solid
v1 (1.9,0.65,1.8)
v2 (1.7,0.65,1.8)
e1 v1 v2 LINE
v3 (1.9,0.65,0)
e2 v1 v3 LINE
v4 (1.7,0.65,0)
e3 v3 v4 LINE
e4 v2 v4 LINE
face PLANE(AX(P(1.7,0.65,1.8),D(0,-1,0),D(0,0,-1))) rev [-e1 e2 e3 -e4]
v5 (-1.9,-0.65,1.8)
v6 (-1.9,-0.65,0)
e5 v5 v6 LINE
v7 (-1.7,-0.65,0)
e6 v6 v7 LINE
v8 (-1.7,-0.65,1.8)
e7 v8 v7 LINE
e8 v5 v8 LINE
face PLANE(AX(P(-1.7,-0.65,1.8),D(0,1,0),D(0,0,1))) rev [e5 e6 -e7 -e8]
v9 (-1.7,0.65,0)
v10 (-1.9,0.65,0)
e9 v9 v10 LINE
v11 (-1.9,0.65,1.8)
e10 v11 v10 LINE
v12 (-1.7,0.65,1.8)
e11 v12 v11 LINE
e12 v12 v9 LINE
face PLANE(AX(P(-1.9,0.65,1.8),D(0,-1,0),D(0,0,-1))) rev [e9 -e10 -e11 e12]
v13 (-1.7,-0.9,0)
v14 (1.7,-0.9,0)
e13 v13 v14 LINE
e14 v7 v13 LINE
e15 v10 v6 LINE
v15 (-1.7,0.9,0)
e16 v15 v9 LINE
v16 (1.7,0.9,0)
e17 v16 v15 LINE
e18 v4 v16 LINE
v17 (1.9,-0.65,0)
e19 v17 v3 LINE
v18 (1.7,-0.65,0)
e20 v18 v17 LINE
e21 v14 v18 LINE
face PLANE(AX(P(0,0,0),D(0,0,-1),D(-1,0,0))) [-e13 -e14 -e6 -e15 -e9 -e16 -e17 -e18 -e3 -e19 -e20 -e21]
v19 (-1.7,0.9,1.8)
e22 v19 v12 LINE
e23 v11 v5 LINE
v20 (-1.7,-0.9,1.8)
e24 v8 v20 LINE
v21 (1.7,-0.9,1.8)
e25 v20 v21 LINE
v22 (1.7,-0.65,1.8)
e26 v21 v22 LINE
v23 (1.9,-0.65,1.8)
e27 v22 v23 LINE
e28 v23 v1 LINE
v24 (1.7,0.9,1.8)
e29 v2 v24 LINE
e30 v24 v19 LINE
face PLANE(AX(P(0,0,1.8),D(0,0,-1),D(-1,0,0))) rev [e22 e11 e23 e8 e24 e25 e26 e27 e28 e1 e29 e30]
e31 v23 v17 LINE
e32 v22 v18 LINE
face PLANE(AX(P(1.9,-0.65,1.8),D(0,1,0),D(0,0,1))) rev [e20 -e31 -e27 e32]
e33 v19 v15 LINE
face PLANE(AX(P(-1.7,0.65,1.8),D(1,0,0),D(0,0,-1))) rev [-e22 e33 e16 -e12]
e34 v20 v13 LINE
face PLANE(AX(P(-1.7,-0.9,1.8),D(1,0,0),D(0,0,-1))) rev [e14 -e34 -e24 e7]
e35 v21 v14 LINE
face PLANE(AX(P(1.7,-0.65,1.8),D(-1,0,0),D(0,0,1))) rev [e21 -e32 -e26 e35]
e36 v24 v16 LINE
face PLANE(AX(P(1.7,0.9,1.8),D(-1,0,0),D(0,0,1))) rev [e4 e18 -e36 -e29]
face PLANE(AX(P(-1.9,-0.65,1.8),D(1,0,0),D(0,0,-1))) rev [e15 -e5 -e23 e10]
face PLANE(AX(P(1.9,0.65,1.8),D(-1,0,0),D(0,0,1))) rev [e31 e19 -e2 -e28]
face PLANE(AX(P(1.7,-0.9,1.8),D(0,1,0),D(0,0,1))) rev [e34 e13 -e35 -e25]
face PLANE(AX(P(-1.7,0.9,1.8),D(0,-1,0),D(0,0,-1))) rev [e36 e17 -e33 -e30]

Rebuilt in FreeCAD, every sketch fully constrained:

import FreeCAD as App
import Part
import Sketcher


def add_polygon(sketch, points):
    """Adds a closed chain of lines whose ends are joined by coincident constraints."""
    first, n = sketch.GeometryCount, len(points)
    for a, b in zip(points, points[1:] + points[:1]):
        sketch.addGeometry(Part.LineSegment(App.Vector(*a, 0), App.Vector(*b, 0)), False)
    for i in range(n):
        sketch.addConstraint(Sketcher.Constraint("Coincident", first + i, 2, first + (i + 1) % n, 1))

doc = App.newDocument("Part")
params = doc.addObject("Spreadsheet::Sheet", "Params")
for row, (alias, value) in enumerate([
    ("sketch1_width", "3.4 mm"),
    ("sketch1_width2", "0.2 mm"),
    ("sketch1_height", "1.3 mm"),
    ("sketch1_height2", "0.25 mm"),
    ("pad1_length", "1.8 mm"),
], start=1):
    params.set(f"A{row}", alias)
    params.set(f"B{row}", "=" + value)
    params.setAlias(f"B{row}", alias)

body = doc.addObject("PartDesign::Body", "Body")

# Sketch on XY plane
sketch1 = body.newObject("Sketcher::SketchObject", "Sketch")
sketch1.AttachmentSupport = (doc.getObject("XY_Plane"), [""])
sketch1.MapMode = "FlatFace"
add_polygon(sketch1, [(-1.7, -0.65), (-1.7, -0.9), (1.7, -0.9), (1.7, -0.65), (1.9, -0.65), (1.9, 0.65), (1.7, 0.65), (1.7, 0.9), (-1.7, 0.9), (-1.7, 0.65), (-1.9, 0.65), (-1.9, -0.65)])  # lines 0-11
sketch1.addConstraint(Sketcher.Constraint("Vertical", 0))
sketch1.addConstraint(Sketcher.Constraint("Horizontal", 1))
sketch1.addConstraint(Sketcher.Constraint("Vertical", 2))
sketch1.addConstraint(Sketcher.Constraint("Horizontal", 3))
sketch1.addConstraint(Sketcher.Constraint("Vertical", 4))
sketch1.addConstraint(Sketcher.Constraint("Horizontal", 5))
sketch1.addConstraint(Sketcher.Constraint("Vertical", 6))
sketch1.addConstraint(Sketcher.Constraint("Horizontal", 7))
sketch1.addConstraint(Sketcher.Constraint("Vertical", 8))
sketch1.addConstraint(Sketcher.Constraint("Horizontal", 9))
sketch1.addConstraint(Sketcher.Constraint("Vertical", 10))
sketch1.addConstraint(Sketcher.Constraint("Horizontal", 11))
sketch1.addConstraint(Sketcher.Constraint("Symmetric", 0, 2, 6, 2, -1, 1))
sketch1.addConstraint(Sketcher.Constraint("Symmetric", 2, 2, 8, 2, -1, 1))
sketch1.addConstraint(Sketcher.Constraint("Symmetric", 4, 2, 10, 2, -1, 1))
sketch1.addConstraint(Sketcher.Constraint("Symmetric", 5, 2, 8, 2, -2))
sketch1.addConstraint(Sketcher.Constraint("DistanceX", 1, 1, 1, 2, 3.4))
sketch1.addConstraint(Sketcher.Constraint("DistanceX", 3, 1, 3, 2, 0.2))
sketch1.addConstraint(Sketcher.Constraint("DistanceY", 4, 1, 4, 2, 1.3))
sketch1.addConstraint(Sketcher.Constraint("DistanceY", 0, 2, 0, 1, 0.25))
sketch1.setExpression("Constraints[28]", "Params.sketch1_width")
sketch1.setExpression("Constraints[29]", "Params.sketch1_width2")
sketch1.setExpression("Constraints[30]", "Params.sketch1_height")
sketch1.setExpression("Constraints[31]", "Params.sketch1_height2")
pad1 = body.newObject("PartDesign::Pad", "Pad")
pad1.Profile = sketch1
pad1.setExpression("Length", "Params.pad1_length")

doc.recompute()
